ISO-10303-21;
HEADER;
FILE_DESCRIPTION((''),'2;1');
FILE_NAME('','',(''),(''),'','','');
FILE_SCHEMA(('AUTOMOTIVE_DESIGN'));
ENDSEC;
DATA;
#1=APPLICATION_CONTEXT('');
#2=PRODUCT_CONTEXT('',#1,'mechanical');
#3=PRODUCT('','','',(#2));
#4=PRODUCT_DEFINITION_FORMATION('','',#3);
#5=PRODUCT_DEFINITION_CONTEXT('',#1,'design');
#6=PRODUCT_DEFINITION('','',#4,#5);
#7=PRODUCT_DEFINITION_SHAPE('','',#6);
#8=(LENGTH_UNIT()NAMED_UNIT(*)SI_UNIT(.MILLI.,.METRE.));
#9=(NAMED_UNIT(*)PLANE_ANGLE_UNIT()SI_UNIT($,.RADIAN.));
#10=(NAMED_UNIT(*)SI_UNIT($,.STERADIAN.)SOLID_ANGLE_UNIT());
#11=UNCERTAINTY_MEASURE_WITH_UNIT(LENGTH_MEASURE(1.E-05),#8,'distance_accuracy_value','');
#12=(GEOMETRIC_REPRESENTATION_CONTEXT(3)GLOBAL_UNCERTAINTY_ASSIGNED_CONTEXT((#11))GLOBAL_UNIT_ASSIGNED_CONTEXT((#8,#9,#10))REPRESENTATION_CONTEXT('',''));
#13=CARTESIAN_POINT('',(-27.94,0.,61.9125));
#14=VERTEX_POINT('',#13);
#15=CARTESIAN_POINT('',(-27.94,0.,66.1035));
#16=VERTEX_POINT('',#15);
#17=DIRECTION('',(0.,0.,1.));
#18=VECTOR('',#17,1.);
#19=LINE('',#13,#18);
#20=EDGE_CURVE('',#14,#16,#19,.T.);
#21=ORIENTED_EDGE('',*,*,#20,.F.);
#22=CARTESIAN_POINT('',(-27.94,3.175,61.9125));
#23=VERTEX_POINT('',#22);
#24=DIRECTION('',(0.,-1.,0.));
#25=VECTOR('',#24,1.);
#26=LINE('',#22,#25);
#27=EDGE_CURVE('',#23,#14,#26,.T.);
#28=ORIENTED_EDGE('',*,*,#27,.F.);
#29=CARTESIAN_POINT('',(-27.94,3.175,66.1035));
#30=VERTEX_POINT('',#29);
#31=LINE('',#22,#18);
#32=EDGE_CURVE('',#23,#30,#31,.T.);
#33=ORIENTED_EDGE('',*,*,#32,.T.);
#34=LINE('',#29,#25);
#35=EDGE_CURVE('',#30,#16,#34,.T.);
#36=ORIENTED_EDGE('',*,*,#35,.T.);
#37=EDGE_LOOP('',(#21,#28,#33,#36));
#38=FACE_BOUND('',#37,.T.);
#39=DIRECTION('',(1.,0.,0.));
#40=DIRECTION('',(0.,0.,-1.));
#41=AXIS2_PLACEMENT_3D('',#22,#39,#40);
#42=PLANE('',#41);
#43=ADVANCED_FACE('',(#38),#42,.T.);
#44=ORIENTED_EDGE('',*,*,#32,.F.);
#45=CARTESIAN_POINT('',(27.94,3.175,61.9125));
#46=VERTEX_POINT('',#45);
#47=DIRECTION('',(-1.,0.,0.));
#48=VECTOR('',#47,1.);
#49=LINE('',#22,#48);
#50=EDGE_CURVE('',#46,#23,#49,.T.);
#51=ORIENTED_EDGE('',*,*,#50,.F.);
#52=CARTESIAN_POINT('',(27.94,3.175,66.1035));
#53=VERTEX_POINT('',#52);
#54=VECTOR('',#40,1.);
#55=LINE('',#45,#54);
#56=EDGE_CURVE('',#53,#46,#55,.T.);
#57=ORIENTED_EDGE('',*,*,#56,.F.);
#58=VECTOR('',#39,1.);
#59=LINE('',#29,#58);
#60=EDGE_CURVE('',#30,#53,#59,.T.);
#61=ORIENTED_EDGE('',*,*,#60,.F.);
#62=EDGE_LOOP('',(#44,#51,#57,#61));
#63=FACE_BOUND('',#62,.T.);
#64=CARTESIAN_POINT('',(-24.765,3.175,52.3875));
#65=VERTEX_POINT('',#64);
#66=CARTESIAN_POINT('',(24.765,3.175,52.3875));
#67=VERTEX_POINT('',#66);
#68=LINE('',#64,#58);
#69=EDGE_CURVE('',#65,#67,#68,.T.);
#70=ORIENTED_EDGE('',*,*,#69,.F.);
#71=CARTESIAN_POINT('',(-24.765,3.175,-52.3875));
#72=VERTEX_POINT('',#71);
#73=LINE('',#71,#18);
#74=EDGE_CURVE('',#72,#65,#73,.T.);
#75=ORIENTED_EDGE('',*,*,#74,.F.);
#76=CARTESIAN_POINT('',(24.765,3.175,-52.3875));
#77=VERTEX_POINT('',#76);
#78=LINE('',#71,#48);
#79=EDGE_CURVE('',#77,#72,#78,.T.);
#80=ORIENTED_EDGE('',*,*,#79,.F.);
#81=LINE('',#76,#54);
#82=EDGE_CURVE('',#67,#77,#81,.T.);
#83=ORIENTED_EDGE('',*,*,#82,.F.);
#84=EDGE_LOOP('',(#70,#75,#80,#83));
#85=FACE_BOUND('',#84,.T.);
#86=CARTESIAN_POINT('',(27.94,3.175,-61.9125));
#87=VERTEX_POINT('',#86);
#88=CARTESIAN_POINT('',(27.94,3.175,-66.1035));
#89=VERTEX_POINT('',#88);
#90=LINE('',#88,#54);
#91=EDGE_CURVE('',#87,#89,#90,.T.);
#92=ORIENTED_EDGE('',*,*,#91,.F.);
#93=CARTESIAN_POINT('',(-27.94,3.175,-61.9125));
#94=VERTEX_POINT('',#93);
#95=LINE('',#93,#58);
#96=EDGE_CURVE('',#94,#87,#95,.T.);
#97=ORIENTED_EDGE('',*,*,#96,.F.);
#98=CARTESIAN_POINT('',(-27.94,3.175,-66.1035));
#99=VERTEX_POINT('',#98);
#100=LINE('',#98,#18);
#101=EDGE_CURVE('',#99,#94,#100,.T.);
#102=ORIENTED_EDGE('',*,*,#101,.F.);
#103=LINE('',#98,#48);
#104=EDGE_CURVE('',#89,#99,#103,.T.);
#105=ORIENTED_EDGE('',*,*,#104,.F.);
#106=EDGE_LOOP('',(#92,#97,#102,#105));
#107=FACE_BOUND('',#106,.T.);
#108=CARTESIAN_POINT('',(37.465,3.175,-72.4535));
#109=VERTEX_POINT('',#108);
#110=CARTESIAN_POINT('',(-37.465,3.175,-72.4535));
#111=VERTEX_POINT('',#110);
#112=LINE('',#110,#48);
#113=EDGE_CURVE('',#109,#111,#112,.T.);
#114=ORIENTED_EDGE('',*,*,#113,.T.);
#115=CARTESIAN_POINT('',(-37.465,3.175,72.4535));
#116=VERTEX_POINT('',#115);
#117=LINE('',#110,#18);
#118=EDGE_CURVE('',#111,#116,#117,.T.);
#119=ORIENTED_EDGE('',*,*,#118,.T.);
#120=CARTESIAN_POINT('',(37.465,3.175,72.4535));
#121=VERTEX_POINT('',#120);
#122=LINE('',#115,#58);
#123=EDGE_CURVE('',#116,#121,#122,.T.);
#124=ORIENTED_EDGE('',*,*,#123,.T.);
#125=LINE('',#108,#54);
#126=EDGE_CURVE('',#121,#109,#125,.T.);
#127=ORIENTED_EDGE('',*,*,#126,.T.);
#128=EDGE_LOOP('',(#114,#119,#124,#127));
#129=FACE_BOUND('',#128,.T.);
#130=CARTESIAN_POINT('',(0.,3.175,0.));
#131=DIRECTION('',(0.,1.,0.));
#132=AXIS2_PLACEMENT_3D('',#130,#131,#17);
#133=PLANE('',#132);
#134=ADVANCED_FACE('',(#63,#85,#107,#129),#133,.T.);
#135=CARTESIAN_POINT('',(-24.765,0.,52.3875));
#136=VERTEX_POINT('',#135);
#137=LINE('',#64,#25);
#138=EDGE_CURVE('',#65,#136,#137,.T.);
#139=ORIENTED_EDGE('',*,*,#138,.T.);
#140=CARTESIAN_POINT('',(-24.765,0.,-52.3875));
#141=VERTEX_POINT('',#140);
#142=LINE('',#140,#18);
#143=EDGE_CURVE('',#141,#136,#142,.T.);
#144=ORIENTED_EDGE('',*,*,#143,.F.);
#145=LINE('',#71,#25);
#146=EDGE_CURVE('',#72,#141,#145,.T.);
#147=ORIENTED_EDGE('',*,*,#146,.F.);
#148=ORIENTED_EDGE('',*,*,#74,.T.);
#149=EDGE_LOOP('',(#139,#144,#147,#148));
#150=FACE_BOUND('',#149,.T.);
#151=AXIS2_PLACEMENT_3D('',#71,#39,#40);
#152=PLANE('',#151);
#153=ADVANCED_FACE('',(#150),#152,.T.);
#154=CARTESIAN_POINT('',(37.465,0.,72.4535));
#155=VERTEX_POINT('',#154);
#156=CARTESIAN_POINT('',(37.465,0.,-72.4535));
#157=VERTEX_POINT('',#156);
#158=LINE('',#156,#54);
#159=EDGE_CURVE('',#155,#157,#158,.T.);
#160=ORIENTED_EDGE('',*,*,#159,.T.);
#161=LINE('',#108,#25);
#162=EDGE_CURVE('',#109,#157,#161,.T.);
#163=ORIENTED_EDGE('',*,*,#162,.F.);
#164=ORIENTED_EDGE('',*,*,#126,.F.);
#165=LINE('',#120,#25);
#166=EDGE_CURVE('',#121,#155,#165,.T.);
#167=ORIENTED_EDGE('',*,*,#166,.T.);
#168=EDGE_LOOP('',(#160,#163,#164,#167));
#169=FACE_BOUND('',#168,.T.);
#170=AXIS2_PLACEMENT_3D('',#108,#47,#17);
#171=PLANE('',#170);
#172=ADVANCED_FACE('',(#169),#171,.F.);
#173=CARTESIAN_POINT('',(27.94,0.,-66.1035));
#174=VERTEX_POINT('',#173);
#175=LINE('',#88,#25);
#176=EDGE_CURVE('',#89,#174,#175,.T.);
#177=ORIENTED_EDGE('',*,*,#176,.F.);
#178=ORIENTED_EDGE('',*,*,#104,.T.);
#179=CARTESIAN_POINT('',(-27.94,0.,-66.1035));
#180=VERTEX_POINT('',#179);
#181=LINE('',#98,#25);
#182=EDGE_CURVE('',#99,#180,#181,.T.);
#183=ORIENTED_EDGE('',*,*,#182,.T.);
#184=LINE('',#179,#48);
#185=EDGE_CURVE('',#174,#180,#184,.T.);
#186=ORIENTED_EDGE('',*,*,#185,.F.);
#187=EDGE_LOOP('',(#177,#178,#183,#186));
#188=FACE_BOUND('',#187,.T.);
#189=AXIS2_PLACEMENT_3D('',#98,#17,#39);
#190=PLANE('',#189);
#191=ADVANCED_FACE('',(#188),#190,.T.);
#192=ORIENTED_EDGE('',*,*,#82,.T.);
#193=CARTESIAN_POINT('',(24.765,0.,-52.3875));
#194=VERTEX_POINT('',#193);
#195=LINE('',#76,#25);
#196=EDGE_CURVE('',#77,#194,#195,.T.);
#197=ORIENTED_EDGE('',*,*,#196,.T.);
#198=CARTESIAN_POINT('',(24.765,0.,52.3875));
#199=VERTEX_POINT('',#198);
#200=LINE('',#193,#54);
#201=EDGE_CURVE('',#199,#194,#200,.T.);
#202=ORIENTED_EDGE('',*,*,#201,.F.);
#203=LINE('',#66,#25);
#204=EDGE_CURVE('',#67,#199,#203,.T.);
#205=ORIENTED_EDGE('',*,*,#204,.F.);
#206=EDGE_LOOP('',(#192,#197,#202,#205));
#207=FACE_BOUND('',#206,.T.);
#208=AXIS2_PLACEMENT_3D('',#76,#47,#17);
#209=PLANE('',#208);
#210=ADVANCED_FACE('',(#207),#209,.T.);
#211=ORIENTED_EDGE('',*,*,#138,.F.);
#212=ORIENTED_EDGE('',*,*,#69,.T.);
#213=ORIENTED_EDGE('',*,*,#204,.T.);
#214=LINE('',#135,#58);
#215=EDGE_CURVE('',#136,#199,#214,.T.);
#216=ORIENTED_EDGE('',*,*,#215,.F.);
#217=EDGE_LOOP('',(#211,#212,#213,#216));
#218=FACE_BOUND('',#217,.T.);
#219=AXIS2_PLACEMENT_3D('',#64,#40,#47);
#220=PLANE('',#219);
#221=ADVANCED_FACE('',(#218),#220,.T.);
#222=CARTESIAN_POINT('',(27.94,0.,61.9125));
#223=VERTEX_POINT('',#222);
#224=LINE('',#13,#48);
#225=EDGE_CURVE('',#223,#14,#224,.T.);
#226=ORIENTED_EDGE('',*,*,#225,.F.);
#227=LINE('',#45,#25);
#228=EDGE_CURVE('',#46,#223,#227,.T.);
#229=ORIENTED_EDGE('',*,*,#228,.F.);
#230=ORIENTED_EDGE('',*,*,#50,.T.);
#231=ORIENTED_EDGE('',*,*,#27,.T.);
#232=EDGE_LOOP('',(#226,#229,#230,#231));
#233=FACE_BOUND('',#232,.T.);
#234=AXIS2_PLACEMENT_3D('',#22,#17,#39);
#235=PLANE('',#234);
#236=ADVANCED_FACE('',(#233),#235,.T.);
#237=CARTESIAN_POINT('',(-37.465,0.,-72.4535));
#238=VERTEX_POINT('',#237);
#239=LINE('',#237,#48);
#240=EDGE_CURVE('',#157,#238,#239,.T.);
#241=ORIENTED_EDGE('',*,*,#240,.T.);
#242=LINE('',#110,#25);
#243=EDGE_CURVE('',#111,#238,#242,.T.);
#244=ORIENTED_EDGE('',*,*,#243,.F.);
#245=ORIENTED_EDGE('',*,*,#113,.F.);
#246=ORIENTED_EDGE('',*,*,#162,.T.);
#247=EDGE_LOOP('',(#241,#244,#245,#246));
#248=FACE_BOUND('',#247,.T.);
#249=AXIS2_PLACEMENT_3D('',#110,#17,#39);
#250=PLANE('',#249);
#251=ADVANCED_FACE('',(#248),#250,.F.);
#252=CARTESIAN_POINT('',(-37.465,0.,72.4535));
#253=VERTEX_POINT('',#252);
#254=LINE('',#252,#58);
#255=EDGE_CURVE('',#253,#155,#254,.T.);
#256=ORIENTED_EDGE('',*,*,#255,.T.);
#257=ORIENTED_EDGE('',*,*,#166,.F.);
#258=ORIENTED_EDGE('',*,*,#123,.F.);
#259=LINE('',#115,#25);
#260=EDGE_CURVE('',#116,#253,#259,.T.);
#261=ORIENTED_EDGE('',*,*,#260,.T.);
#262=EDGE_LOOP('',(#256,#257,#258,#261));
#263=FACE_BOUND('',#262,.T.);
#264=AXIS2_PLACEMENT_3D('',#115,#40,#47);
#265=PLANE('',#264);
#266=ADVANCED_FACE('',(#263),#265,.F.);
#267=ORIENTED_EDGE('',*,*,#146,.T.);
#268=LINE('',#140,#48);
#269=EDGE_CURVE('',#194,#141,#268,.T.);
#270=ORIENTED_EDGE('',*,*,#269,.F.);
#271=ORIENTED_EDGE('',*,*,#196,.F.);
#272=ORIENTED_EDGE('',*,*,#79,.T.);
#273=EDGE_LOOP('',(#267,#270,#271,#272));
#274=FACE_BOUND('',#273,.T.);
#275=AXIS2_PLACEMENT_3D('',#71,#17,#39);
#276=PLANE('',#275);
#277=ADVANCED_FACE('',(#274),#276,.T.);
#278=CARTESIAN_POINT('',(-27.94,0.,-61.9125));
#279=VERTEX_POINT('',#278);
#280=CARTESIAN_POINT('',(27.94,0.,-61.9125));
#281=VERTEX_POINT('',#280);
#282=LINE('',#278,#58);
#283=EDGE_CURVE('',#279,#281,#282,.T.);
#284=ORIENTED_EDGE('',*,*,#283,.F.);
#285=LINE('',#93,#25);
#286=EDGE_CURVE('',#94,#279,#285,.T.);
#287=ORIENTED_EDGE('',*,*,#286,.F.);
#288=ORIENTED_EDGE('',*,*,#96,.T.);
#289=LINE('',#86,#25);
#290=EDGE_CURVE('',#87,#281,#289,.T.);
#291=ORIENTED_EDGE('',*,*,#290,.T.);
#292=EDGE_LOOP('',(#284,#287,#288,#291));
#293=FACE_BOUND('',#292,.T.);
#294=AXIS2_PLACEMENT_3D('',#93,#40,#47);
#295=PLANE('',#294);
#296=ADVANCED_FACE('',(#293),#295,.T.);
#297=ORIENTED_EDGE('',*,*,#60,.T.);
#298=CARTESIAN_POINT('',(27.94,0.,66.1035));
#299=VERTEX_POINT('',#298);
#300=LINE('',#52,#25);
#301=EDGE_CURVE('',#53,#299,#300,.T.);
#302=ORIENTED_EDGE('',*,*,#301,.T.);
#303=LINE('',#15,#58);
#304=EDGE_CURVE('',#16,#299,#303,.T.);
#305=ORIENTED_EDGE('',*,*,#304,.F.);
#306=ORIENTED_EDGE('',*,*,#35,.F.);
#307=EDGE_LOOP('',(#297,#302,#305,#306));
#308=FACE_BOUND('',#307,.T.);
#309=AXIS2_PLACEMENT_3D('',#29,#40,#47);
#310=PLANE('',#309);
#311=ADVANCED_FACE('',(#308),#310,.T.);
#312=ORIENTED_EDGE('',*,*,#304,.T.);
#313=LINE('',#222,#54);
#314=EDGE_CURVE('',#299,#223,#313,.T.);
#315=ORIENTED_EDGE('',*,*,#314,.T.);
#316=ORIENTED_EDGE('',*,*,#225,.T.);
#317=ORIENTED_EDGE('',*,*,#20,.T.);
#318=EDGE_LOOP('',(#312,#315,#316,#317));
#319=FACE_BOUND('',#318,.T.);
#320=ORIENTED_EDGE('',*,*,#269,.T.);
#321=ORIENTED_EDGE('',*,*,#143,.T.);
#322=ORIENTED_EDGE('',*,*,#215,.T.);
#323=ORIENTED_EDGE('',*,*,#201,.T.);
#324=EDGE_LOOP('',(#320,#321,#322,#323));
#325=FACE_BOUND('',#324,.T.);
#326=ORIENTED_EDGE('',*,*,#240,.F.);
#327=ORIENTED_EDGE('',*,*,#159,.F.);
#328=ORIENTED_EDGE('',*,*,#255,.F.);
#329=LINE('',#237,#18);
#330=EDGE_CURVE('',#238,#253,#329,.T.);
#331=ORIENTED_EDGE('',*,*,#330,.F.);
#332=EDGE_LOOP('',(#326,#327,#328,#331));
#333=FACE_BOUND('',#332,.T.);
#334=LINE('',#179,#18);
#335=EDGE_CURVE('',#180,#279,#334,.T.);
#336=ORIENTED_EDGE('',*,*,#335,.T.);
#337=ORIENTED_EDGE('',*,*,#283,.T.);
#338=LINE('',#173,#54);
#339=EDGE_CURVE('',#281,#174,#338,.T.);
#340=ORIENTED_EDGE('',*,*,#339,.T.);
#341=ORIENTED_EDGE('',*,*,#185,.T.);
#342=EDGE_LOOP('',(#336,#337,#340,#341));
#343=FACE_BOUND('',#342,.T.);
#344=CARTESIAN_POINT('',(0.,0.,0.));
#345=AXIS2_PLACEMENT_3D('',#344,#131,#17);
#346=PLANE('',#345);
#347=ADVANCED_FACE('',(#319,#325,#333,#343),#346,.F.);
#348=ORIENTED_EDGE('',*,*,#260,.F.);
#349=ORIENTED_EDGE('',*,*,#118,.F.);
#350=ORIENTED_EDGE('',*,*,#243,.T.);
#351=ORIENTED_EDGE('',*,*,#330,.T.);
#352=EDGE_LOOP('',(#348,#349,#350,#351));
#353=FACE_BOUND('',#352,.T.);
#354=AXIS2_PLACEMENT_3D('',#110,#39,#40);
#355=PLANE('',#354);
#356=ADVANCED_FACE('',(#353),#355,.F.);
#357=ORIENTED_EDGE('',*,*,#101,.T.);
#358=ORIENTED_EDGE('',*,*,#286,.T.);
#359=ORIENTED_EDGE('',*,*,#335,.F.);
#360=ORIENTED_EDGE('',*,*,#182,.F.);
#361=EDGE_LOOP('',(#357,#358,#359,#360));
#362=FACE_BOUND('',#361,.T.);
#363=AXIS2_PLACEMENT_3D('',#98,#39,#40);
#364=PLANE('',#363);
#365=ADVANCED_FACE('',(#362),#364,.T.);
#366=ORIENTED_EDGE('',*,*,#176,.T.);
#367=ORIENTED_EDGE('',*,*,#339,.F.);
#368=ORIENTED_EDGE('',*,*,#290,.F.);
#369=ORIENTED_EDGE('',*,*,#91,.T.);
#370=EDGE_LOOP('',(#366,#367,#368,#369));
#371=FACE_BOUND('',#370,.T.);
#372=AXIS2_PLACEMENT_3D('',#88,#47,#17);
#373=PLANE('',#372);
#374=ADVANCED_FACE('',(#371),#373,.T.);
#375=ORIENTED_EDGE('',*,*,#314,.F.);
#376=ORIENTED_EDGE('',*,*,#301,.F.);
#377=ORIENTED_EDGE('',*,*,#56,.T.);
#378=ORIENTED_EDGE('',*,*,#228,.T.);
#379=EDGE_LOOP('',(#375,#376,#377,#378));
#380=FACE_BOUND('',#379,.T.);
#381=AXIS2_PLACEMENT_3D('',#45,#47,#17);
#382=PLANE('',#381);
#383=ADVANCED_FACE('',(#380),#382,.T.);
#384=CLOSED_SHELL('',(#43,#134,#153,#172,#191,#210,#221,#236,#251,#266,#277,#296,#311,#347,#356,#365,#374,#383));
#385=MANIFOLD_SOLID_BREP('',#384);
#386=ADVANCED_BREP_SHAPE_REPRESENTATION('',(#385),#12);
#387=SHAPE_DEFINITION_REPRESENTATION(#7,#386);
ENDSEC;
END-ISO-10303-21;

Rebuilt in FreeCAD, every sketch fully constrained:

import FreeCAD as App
import Part
import Sketcher
from FreeCAD import Vector
Q = App.Units.Quantity


def add_polygon(sketch, points):
    """Adds a closed chain of lines whose ends are joined by coincident constraints."""
    first, n = sketch.GeometryCount, len(points)
    for a, b in zip(points, points[1:] + points[:1]):
        sketch.addGeometry(Part.LineSegment(App.Vector(*a, 0), App.Vector(*b, 0)), False)
    for i in range(n):
        sketch.addConstraint(Sketcher.Constraint("Coincident", first + i, 2, first + (i + 1) % n, 1))

doc = App.newDocument("Part")
body = doc.addObject("PartDesign::Body", "Body")

sketch1 = body.newObject("Sketcher::SketchObject", "Sketch")
sketch1.AttachmentSupport = (doc.getObject("XZ_Plane"), [""])
sketch1.MapMode = "FlatFace"
add_polygon(sketch1, [(-37.5, -72.5), (-37.5, 72.5), (37.5, 72.5), (37.5, -72.5)])
add_polygon(sketch1, [(27.9, 66.1), (-27.9, 66.1), (-27.9, 61.9), (27.9, 61.9)])
add_polygon(sketch1, [(24.8, 52.4), (-24.8, 52.4), (-24.8, -52.4), (24.8, -52.4)])
add_polygon(sketch1, [(27.9, -61.9), (-27.9, -61.9), (-27.9, -66.1), (27.9, -66.1)])
sketch1.addConstraint(Sketcher.Constraint("Vertical", 0))
sketch1.addConstraint(Sketcher.Constraint("Horizontal", 1))
sketch1.addConstraint(Sketcher.Constraint("Vertical", 2))
sketch1.addConstraint(Sketcher.Constraint("Horizontal", 3))
sketch1.addConstraint(Sketcher.Constraint("Horizontal", 4))
sketch1.addConstraint(Sketcher.Constraint("Vertical", 5))
sketch1.addConstraint(Sketcher.Constraint("Horizontal", 6))
sketch1.addConstraint(Sketcher.Constraint("Vertical", 7))
sketch1.addConstraint(Sketcher.Constraint("Horizontal", 8))
sketch1.addConstraint(Sketcher.Constraint("Vertical", 9))
sketch1.addConstraint(Sketcher.Constraint("Horizontal", 10))
sketch1.addConstraint(Sketcher.Constraint("Vertical", 11))
sketch1.addConstraint(Sketcher.Constraint("Horizontal", 12))
sketch1.addConstraint(Sketcher.Constraint("Vertical", 13))
sketch1.addConstraint(Sketcher.Constraint("Horizontal", 14))
sketch1.addConstraint(Sketcher.Constraint("Vertical", 15))
sketch1.addConstraint(Sketcher.Constraint("Symmetric", 0, 2, 2, 2, -1, 1))
sketch1.addConstraint(Sketcher.Constraint("Symmetric", 8, 2, 10, 2, -1, 1))
sketch1.addConstraint(Sketcher.Constraint("Symmetric", 6, 2, 12, 2, -1, 1))
sketch1.addConstraint(Sketcher.Constraint("Symmetric", 4, 2, 14, 2, -1, 1))
sketch1.addConstraint(Sketcher.Constraint("Vertical", 5, 2, 12, 2))
sketch1.addConstraint(Sketcher.Constraint("DistanceX", 4, 2, 4, 1, Q("2.2 in")))
sketch1.addConstraint(Sketcher.Constraint("DistanceX", 1, 1, 1, 2, Q("2.95 in")))
sketch1.addConstraint(Sketcher.Constraint("DistanceX", 8, 2, 8, 1, Q("1.95 in")))
sketch1.addConstraint(Sketcher.Constraint("DistanceY", 9, 2, 5, 2, Q("4.5 in")))
sketch1.addConstraint(Sketcher.Constraint("DistanceY", 0, 1, 0, 2, Q("5.705 in")))
sketch1.addConstraint(Sketcher.Constraint("DistanceY", 5, 2, 5, 1, Q("0.165 in")))
sketch1.addConstraint(Sketcher.Constraint("DistanceY", 9, 2, 9, 1, Q("4.125 in")))
pad1 = body.newObject("PartDesign::Pad", "Pad")
pad1.Profile = sketch1
pad1.Length = Q("0.125 in")
pad1.Reversed = True

doc.recompute()
